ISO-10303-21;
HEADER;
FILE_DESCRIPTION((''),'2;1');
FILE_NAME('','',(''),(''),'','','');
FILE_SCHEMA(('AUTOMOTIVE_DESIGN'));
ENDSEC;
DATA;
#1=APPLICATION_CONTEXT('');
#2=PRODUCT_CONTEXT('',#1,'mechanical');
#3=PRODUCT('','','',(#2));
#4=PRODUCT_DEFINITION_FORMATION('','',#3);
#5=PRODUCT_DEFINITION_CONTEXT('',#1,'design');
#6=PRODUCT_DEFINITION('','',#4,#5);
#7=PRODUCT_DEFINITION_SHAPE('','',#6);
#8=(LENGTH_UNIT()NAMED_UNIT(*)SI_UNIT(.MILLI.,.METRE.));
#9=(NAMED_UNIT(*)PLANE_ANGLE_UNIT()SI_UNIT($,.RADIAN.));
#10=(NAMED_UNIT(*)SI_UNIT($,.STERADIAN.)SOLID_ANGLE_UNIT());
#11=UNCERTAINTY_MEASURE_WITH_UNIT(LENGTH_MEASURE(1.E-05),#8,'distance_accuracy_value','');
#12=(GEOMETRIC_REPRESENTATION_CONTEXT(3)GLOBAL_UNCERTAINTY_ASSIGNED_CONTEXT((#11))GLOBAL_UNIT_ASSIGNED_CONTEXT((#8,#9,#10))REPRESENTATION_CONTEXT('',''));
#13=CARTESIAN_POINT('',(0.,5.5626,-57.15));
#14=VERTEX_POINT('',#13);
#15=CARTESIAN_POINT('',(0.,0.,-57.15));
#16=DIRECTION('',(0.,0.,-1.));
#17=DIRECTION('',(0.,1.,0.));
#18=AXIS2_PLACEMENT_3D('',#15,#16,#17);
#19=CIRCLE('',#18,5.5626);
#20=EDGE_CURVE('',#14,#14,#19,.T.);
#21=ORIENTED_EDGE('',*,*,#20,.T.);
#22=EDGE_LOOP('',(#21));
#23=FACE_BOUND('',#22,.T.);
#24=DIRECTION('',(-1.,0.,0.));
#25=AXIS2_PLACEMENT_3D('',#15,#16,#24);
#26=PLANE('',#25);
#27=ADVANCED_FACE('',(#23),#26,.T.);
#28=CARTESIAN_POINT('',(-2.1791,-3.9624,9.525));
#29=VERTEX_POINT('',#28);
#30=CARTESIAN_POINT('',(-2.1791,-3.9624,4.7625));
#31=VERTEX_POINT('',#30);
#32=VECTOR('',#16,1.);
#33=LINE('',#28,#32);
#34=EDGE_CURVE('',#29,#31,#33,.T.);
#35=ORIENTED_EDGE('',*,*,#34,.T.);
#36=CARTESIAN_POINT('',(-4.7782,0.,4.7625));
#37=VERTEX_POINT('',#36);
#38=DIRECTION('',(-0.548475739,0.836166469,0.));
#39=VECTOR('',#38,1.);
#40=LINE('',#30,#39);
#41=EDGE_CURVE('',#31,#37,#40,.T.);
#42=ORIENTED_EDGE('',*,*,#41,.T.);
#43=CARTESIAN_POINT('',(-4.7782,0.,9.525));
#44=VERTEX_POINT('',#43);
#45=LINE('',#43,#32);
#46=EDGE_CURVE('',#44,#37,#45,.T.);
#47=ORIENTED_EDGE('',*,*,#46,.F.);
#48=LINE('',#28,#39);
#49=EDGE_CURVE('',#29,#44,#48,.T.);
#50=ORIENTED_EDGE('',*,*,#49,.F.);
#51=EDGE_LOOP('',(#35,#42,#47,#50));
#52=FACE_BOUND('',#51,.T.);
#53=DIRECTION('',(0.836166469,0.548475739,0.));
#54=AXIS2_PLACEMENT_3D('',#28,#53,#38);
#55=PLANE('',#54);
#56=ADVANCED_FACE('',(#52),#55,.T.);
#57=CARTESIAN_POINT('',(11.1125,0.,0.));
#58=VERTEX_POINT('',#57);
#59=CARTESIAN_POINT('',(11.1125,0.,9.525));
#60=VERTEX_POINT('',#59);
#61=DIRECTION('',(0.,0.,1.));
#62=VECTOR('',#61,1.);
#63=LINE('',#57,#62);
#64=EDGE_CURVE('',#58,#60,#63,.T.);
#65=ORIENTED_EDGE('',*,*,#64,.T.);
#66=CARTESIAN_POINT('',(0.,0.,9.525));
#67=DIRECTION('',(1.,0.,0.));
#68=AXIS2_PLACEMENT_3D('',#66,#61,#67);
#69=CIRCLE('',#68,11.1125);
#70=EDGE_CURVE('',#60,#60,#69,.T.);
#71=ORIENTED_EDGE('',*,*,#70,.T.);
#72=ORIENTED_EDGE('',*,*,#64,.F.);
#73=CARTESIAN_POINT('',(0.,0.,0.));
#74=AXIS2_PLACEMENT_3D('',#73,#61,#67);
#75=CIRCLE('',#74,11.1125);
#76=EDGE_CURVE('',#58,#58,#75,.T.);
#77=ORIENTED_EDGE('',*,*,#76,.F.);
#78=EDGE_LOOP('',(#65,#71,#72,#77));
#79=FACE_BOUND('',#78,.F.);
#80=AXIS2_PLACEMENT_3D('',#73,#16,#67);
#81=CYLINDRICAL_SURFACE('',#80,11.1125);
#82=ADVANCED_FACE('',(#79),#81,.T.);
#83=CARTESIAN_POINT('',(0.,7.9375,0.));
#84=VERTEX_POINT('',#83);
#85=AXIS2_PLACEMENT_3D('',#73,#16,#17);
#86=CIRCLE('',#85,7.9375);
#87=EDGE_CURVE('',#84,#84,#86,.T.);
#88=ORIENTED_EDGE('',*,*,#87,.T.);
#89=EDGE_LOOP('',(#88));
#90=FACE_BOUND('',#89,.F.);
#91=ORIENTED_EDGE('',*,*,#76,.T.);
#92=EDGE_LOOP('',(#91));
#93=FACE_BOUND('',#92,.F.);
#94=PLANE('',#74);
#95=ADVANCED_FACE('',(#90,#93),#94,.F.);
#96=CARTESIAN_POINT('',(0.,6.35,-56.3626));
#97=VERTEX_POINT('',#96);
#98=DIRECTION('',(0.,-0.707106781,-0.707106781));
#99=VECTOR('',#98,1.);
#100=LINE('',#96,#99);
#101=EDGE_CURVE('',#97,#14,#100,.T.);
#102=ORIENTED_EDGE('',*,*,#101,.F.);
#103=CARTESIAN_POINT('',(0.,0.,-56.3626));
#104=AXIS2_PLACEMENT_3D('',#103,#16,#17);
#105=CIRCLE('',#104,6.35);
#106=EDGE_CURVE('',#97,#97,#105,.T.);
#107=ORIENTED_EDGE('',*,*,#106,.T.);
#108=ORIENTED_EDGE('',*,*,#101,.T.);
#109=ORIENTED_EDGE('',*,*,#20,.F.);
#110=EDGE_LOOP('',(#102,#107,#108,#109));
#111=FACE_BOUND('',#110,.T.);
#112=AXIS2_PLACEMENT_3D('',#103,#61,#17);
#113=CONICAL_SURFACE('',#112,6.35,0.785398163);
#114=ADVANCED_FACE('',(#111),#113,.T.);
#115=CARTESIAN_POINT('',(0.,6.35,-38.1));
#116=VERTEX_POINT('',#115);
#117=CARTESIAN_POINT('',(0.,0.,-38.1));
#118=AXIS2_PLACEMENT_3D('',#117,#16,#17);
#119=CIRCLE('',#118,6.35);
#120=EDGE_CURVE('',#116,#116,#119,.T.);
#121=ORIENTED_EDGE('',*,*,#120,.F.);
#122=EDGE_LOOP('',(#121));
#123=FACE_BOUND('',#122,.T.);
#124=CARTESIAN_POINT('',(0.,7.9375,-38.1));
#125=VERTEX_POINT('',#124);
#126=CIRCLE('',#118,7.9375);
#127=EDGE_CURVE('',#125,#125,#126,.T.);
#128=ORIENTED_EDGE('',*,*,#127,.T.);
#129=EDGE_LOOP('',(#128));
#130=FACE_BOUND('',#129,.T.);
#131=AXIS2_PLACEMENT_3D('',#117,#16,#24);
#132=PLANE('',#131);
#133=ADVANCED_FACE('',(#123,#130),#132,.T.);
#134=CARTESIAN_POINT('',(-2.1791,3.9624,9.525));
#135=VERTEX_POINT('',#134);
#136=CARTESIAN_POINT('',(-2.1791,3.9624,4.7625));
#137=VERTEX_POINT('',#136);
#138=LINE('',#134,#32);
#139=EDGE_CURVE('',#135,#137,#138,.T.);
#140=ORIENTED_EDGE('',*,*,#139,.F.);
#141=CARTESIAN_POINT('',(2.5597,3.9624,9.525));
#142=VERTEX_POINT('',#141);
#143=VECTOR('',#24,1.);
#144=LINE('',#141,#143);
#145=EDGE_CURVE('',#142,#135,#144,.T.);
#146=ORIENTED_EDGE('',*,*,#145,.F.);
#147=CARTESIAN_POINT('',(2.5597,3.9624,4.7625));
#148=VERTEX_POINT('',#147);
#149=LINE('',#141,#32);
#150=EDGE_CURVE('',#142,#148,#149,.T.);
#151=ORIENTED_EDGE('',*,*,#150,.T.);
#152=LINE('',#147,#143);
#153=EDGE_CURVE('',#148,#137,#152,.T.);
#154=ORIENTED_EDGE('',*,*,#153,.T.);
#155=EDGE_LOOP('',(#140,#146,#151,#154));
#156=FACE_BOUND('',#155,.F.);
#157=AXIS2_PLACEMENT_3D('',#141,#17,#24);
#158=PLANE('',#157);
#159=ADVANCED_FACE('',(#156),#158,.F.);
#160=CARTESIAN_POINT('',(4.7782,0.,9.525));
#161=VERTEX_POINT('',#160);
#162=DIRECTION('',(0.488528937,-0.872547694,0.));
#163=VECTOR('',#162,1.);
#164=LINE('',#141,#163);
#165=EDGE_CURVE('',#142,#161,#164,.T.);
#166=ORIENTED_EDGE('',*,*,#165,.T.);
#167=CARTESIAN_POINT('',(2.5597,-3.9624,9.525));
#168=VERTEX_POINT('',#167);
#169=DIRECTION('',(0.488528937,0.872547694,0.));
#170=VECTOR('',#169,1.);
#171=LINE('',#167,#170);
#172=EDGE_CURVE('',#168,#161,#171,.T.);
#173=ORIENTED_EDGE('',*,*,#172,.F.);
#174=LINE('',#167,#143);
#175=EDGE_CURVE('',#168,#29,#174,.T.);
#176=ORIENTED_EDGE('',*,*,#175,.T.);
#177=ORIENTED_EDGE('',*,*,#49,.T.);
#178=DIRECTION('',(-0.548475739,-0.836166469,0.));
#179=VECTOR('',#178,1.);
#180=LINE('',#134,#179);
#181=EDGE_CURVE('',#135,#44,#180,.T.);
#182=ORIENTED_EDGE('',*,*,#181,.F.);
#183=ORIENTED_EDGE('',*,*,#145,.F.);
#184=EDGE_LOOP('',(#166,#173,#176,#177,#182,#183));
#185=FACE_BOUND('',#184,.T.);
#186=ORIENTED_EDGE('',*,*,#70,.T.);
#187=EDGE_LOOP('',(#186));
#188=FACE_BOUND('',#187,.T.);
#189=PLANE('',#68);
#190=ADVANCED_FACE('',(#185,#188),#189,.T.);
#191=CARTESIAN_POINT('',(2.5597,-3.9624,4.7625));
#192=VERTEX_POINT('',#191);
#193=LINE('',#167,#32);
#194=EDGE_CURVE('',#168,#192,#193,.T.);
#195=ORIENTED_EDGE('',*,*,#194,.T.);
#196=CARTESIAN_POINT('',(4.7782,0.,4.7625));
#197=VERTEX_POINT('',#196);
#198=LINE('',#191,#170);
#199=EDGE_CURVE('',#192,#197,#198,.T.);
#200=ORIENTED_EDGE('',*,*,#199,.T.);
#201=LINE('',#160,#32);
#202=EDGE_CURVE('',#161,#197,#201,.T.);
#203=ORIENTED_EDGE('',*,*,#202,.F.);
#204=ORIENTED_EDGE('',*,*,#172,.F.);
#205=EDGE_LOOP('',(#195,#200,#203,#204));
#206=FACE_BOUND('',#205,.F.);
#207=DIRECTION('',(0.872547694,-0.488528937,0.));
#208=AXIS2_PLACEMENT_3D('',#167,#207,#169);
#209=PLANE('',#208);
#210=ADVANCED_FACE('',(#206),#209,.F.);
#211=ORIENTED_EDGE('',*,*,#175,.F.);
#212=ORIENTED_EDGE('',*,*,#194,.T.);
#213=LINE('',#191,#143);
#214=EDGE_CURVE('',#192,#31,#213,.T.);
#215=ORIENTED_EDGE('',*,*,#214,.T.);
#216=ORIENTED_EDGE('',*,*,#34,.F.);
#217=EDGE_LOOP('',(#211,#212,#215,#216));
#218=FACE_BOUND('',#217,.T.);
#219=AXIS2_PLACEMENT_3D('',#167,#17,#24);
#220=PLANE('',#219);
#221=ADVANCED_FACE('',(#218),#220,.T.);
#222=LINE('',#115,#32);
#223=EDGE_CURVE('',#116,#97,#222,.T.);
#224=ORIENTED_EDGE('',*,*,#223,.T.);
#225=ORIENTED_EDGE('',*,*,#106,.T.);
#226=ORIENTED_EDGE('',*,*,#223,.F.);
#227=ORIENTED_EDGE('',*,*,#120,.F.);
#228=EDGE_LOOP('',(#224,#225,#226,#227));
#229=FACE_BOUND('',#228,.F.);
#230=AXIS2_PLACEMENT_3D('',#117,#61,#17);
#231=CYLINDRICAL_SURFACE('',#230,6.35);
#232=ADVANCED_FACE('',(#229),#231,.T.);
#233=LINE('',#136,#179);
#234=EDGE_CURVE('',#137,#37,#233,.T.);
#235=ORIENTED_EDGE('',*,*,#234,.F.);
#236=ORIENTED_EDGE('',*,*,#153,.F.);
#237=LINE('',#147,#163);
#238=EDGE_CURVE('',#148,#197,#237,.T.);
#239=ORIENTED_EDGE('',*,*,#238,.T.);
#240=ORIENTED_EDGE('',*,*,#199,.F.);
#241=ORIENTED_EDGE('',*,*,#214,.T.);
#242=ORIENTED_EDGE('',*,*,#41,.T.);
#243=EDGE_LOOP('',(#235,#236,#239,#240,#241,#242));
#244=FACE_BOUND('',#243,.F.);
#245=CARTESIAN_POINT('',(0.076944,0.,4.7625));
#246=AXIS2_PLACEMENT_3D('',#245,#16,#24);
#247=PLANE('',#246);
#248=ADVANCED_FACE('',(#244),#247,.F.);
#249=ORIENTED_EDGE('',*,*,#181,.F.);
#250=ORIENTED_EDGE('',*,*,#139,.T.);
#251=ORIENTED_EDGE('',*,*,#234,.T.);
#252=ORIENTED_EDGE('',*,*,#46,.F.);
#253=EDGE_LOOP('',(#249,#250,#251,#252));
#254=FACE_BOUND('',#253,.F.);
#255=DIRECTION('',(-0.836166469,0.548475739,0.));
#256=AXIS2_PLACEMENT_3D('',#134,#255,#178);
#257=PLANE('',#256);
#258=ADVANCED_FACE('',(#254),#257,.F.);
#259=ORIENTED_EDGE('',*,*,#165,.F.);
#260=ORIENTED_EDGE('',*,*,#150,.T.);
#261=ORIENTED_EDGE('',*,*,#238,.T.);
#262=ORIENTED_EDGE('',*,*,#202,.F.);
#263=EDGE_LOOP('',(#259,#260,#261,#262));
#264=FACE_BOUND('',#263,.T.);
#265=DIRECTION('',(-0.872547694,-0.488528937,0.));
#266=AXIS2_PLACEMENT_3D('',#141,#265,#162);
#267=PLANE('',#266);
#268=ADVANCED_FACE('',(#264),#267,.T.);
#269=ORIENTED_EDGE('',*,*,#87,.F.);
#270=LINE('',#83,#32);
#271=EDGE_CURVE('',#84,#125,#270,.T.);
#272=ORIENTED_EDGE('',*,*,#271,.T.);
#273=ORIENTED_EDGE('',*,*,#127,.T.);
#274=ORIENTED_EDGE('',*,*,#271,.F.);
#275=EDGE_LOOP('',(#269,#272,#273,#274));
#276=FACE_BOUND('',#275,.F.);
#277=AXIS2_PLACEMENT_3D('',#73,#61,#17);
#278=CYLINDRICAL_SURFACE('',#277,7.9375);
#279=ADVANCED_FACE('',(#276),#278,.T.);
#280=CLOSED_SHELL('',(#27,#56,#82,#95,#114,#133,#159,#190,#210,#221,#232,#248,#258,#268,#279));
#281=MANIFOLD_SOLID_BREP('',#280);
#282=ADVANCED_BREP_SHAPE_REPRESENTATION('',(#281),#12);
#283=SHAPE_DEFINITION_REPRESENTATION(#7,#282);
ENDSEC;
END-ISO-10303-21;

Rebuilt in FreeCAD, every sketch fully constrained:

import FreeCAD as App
import Part
import Sketcher
from FreeCAD import Vector
Q = App.Units.Quantity


def edges_at(feature, points):
    """Names of the edges that pass closest to the given points."""
    edges = feature.Shape.Edges
    near = lambda p: min(range(len(edges)), key=lambda i: edges[i].distToShape(Part.Vertex(*p))[0])
    return sorted({f"Edge{near(p) + 1}" for p in points})


def add_polygon(sketch, points):
    """Adds a closed chain of lines whose ends are joined by coincident constraints."""
    first, n = sketch.GeometryCount, len(points)
    for a, b in zip(points, points[1:] + points[:1]):
        sketch.addGeometry(Part.LineSegment(App.Vector(*a, 0), App.Vector(*b, 0)), False)
    for i in range(n):
        sketch.addConstraint(Sketcher.Constraint("Coincident", first + i, 2, first + (i + 1) % n, 1))

doc = App.newDocument("Part")
body = doc.addObject("PartDesign::Body", "Body")

# Sketch on XY plane
sketch1 = doc.addObject("Sketcher::SketchObject", "Sketch")
body.addObject(sketch1)
sketch1.AttachmentSupport = (doc.XY_Plane, [""])
sketch1.MapMode = "FlatFace"
sketch1.addGeometry(Part.Circle(Vector(0, 0, 0), Vector(0, 0, 1), 11.1125), False)
sketch1.addConstraint([
    Sketcher.Constraint("Coincident", 0, 3, -1, 1),
    Sketcher.Constraint("Diameter", 0, Q("0.875 in")),
])
pad1 = doc.addObject("PartDesign::Pad", "Pad")
body.addObject(pad1)
pad1.Profile = sketch1
pad1.Length = Q("0.375 in")

# Sketch on XY plane
sketch2 = doc.addObject("Sketcher::SketchObject", "Sketch001")
body.addObject(sketch2)
sketch2.AttachmentSupport = (doc.XY_Plane, [""])
sketch2.MapMode = "FlatFace"
sketch2.addGeometry(Part.Circle(Vector(0, 0, 0), Vector(0, 0, 1), 7.9375), False)
sketch2.addConstraint([
    Sketcher.Constraint("Coincident", 0, 3, -1, 1),
    Sketcher.Constraint("Diameter", 0, Q("0.625 in")),
])
pad2 = doc.addObject("PartDesign::Pad", "Pad001")
body.addObject(pad2)
pad2.Profile = sketch2
pad2.Length = Q("1.5 in")
pad2.Reversed = True

# Sketch on XY plane
sketch3 = doc.addObject("Sketcher::SketchObject", "Sketch002")
body.addObject(sketch3)
sketch3.AttachmentSupport = (doc.XY_Plane, [""])
sketch3.MapMode = "FlatFace"
sketch3.AttachmentOffset = App.Placement(Vector(0, 0, -1.5 * 25.4), App.Rotation())
sketch3.addGeometry(Part.Circle(Vector(0, 0, 0), Vector(0, 0, 1), 6.35), False)
sketch3.addConstraint([
    Sketcher.Constraint("Coincident", 0, 3, -1, 1),
    Sketcher.Constraint("Diameter", 0, Q("0.5 in")),
])
pad3 = doc.addObject("PartDesign::Pad", "Pad002")
body.addObject(pad3)
pad3.Profile = sketch3
pad3.Length = Q("0.75 in")
pad3.Reversed = True

# Sketch on XY plane
sketch4 = doc.addObject("Sketcher::SketchObject", "Sketch003")
body.addObject(sketch4)
sketch4.AttachmentSupport = (doc.XY_Plane, [""])
sketch4.MapMode = "FlatFace"
sketch4.AttachmentOffset = App.Placement(Vector(0, 0, 0.375 * 25.4), App.Rotation())
add_polygon(sketch4, [(-4.7782, 0), (-2.1791, -3.9624), (2.5597, -3.9624), (4.7782, 0), (2.5597, 3.9624), (-2.1791, 3.9624)])  # lines 0-5
sketch4.addConstraint([
    Sketcher.Constraint("Horizontal", 1),
    Sketcher.Constraint("Horizontal", 4),
    Sketcher.Constraint("Symmetric", 2, 2, 5, 2, -1, 1),
    Sketcher.Constraint("Symmetric", 1, 2, 3, 2, -1),
    Sketcher.Constraint("PointOnObject", 2, 2, -1),
    Sketcher.Constraint("Vertical", 0, 2, 4, 2),
    Sketcher.Constraint("DistanceY", 0, 2, -1, 1, Q("0.156 in")),
    Sketcher.Constraint("DistanceX", 1, 1, 1, 2, Q("4.7388 mm")),
    Sketcher.Constraint("DistanceX", 0, 2, -1, 1, Q("0.0858 in")),
    Sketcher.Constraint("DistanceX", 0, 2, 2, 2, Q("0.2739 in")),
])
pocket1 = doc.addObject("PartDesign::Pocket", "Pocket")
body.addObject(pocket1)
pocket1.Profile = sketch4
pocket1.Length = Q("0.1875 in")
doc.recompute()

chamfer = doc.addObject("PartDesign::Chamfer", "Chamfer")
body.addObject(chamfer)
chamfer.Base = (pocket1, edges_at(pocket1, [(0, -6.35, -57.15)]))
chamfer.Size = Q("0.031 in")

doc.recompute()
